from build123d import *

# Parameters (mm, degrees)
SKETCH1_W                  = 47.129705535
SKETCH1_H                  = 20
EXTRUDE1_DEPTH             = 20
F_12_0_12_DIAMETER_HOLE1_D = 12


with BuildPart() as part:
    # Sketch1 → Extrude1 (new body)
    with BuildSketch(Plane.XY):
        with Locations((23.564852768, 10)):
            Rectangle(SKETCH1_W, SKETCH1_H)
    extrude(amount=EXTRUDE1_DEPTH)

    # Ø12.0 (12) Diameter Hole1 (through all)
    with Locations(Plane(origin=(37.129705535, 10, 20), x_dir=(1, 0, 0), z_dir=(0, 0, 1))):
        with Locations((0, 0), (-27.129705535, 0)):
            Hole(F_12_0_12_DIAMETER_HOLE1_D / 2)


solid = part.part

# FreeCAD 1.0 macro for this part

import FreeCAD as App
import Part
import Sketcher
from FreeCAD import Vector


def add_polygon(sketch, points):
    """Adds a closed chain of lines whose ends are joined by coincident constraints."""
    first, n = sketch.GeometryCount, len(points)
    for a, b in zip(points, points[1:] + points[:1]):
        sketch.addGeometry(Part.LineSegment(App.Vector(*a, 0), App.Vector(*b, 0)), False)
    for i in range(n):
        sketch.addConstraint(Sketcher.Constraint("Coincident", first + i, 2, first + (i + 1) % n, 1))

doc = App.newDocument("Part")
body = doc.addObject("PartDesign::Body", "Body")

# Sketch on XY plane
sketch1 = body.newObject("Sketcher::SketchObject", "Sketch")
sketch1.AttachmentSupport = (doc.getObject("XY_Plane"), [""])
sketch1.MapMode = "FlatFace"
add_polygon(sketch1, [(0, 20), (0, 0), (47, 0), (47, 20)])  # lines 0-3
sketch1.addConstraint(Sketcher.Constraint("Vertical", 0))
sketch1.addConstraint(Sketcher.Constraint("Horizontal", 1))
sketch1.addConstraint(Sketcher.Constraint("Vertical", 2))
sketch1.addConstraint(Sketcher.Constraint("Horizontal", 3))
sketch1.addConstraint(Sketcher.Constraint("Coincident", 0, 2, -1, 1))
sketch1.addConstraint(Sketcher.Constraint("DistanceY", 0, 2, 0, 1, 20.0))
sketch1.addConstraint(Sketcher.Constraint("DistanceX", 1, 1, 1, 2, 47.129706))
pad1 = body.newObject("PartDesign::Pad", "Pad")
pad1.Profile = sketch1
pad1.Length = 20

# Sketch on XY plane
sketch2 = body.newObject("Sketcher::SketchObject", "Sketch001")
sketch2.AttachmentSupport = (doc.getObject("XY_Plane"), [""])
sketch2.MapMode = "FlatFace"
sketch2.AttachmentOffset = App.Placement(Vector(0, 0, 20), App.Rotation())
sketch2.addGeometry(Part.Circle(Vector(37, 10, 0), Vector(0, 0, 1), 6), False)
sketch2.addGeometry(Part.Circle(Vector(10, 10, 0), Vector(0, 0, 1), 6), False)
sketch2.addConstraint(Sketcher.Constraint("Equal", 0, 1))
sketch2.addConstraint(Sketcher.Constraint("Horizontal", 0, 3, 1, 3))
sketch2.addConstraint(Sketcher.Constraint("Diameter", 0, 12.0))
sketch2.addConstraint(Sketcher.Constraint("DistanceY", -1, 1, 0, 3, 10.0))
sketch2.addConstraint(Sketcher.Constraint("DistanceX", -1, 1, 1, 3, 10.0))
sketch2.addConstraint(Sketcher.Constraint("DistanceX", -1, 1, 0, 3, 37.129706))
doc.recompute()
hole = body.newObject("PartDesign::Hole", "Hole")
hole.Profile = sketch2
hole.ThreadType = "None"
hole.Diameter = 12
hole.DepthType = "ThroughAll"

doc.recompute()
